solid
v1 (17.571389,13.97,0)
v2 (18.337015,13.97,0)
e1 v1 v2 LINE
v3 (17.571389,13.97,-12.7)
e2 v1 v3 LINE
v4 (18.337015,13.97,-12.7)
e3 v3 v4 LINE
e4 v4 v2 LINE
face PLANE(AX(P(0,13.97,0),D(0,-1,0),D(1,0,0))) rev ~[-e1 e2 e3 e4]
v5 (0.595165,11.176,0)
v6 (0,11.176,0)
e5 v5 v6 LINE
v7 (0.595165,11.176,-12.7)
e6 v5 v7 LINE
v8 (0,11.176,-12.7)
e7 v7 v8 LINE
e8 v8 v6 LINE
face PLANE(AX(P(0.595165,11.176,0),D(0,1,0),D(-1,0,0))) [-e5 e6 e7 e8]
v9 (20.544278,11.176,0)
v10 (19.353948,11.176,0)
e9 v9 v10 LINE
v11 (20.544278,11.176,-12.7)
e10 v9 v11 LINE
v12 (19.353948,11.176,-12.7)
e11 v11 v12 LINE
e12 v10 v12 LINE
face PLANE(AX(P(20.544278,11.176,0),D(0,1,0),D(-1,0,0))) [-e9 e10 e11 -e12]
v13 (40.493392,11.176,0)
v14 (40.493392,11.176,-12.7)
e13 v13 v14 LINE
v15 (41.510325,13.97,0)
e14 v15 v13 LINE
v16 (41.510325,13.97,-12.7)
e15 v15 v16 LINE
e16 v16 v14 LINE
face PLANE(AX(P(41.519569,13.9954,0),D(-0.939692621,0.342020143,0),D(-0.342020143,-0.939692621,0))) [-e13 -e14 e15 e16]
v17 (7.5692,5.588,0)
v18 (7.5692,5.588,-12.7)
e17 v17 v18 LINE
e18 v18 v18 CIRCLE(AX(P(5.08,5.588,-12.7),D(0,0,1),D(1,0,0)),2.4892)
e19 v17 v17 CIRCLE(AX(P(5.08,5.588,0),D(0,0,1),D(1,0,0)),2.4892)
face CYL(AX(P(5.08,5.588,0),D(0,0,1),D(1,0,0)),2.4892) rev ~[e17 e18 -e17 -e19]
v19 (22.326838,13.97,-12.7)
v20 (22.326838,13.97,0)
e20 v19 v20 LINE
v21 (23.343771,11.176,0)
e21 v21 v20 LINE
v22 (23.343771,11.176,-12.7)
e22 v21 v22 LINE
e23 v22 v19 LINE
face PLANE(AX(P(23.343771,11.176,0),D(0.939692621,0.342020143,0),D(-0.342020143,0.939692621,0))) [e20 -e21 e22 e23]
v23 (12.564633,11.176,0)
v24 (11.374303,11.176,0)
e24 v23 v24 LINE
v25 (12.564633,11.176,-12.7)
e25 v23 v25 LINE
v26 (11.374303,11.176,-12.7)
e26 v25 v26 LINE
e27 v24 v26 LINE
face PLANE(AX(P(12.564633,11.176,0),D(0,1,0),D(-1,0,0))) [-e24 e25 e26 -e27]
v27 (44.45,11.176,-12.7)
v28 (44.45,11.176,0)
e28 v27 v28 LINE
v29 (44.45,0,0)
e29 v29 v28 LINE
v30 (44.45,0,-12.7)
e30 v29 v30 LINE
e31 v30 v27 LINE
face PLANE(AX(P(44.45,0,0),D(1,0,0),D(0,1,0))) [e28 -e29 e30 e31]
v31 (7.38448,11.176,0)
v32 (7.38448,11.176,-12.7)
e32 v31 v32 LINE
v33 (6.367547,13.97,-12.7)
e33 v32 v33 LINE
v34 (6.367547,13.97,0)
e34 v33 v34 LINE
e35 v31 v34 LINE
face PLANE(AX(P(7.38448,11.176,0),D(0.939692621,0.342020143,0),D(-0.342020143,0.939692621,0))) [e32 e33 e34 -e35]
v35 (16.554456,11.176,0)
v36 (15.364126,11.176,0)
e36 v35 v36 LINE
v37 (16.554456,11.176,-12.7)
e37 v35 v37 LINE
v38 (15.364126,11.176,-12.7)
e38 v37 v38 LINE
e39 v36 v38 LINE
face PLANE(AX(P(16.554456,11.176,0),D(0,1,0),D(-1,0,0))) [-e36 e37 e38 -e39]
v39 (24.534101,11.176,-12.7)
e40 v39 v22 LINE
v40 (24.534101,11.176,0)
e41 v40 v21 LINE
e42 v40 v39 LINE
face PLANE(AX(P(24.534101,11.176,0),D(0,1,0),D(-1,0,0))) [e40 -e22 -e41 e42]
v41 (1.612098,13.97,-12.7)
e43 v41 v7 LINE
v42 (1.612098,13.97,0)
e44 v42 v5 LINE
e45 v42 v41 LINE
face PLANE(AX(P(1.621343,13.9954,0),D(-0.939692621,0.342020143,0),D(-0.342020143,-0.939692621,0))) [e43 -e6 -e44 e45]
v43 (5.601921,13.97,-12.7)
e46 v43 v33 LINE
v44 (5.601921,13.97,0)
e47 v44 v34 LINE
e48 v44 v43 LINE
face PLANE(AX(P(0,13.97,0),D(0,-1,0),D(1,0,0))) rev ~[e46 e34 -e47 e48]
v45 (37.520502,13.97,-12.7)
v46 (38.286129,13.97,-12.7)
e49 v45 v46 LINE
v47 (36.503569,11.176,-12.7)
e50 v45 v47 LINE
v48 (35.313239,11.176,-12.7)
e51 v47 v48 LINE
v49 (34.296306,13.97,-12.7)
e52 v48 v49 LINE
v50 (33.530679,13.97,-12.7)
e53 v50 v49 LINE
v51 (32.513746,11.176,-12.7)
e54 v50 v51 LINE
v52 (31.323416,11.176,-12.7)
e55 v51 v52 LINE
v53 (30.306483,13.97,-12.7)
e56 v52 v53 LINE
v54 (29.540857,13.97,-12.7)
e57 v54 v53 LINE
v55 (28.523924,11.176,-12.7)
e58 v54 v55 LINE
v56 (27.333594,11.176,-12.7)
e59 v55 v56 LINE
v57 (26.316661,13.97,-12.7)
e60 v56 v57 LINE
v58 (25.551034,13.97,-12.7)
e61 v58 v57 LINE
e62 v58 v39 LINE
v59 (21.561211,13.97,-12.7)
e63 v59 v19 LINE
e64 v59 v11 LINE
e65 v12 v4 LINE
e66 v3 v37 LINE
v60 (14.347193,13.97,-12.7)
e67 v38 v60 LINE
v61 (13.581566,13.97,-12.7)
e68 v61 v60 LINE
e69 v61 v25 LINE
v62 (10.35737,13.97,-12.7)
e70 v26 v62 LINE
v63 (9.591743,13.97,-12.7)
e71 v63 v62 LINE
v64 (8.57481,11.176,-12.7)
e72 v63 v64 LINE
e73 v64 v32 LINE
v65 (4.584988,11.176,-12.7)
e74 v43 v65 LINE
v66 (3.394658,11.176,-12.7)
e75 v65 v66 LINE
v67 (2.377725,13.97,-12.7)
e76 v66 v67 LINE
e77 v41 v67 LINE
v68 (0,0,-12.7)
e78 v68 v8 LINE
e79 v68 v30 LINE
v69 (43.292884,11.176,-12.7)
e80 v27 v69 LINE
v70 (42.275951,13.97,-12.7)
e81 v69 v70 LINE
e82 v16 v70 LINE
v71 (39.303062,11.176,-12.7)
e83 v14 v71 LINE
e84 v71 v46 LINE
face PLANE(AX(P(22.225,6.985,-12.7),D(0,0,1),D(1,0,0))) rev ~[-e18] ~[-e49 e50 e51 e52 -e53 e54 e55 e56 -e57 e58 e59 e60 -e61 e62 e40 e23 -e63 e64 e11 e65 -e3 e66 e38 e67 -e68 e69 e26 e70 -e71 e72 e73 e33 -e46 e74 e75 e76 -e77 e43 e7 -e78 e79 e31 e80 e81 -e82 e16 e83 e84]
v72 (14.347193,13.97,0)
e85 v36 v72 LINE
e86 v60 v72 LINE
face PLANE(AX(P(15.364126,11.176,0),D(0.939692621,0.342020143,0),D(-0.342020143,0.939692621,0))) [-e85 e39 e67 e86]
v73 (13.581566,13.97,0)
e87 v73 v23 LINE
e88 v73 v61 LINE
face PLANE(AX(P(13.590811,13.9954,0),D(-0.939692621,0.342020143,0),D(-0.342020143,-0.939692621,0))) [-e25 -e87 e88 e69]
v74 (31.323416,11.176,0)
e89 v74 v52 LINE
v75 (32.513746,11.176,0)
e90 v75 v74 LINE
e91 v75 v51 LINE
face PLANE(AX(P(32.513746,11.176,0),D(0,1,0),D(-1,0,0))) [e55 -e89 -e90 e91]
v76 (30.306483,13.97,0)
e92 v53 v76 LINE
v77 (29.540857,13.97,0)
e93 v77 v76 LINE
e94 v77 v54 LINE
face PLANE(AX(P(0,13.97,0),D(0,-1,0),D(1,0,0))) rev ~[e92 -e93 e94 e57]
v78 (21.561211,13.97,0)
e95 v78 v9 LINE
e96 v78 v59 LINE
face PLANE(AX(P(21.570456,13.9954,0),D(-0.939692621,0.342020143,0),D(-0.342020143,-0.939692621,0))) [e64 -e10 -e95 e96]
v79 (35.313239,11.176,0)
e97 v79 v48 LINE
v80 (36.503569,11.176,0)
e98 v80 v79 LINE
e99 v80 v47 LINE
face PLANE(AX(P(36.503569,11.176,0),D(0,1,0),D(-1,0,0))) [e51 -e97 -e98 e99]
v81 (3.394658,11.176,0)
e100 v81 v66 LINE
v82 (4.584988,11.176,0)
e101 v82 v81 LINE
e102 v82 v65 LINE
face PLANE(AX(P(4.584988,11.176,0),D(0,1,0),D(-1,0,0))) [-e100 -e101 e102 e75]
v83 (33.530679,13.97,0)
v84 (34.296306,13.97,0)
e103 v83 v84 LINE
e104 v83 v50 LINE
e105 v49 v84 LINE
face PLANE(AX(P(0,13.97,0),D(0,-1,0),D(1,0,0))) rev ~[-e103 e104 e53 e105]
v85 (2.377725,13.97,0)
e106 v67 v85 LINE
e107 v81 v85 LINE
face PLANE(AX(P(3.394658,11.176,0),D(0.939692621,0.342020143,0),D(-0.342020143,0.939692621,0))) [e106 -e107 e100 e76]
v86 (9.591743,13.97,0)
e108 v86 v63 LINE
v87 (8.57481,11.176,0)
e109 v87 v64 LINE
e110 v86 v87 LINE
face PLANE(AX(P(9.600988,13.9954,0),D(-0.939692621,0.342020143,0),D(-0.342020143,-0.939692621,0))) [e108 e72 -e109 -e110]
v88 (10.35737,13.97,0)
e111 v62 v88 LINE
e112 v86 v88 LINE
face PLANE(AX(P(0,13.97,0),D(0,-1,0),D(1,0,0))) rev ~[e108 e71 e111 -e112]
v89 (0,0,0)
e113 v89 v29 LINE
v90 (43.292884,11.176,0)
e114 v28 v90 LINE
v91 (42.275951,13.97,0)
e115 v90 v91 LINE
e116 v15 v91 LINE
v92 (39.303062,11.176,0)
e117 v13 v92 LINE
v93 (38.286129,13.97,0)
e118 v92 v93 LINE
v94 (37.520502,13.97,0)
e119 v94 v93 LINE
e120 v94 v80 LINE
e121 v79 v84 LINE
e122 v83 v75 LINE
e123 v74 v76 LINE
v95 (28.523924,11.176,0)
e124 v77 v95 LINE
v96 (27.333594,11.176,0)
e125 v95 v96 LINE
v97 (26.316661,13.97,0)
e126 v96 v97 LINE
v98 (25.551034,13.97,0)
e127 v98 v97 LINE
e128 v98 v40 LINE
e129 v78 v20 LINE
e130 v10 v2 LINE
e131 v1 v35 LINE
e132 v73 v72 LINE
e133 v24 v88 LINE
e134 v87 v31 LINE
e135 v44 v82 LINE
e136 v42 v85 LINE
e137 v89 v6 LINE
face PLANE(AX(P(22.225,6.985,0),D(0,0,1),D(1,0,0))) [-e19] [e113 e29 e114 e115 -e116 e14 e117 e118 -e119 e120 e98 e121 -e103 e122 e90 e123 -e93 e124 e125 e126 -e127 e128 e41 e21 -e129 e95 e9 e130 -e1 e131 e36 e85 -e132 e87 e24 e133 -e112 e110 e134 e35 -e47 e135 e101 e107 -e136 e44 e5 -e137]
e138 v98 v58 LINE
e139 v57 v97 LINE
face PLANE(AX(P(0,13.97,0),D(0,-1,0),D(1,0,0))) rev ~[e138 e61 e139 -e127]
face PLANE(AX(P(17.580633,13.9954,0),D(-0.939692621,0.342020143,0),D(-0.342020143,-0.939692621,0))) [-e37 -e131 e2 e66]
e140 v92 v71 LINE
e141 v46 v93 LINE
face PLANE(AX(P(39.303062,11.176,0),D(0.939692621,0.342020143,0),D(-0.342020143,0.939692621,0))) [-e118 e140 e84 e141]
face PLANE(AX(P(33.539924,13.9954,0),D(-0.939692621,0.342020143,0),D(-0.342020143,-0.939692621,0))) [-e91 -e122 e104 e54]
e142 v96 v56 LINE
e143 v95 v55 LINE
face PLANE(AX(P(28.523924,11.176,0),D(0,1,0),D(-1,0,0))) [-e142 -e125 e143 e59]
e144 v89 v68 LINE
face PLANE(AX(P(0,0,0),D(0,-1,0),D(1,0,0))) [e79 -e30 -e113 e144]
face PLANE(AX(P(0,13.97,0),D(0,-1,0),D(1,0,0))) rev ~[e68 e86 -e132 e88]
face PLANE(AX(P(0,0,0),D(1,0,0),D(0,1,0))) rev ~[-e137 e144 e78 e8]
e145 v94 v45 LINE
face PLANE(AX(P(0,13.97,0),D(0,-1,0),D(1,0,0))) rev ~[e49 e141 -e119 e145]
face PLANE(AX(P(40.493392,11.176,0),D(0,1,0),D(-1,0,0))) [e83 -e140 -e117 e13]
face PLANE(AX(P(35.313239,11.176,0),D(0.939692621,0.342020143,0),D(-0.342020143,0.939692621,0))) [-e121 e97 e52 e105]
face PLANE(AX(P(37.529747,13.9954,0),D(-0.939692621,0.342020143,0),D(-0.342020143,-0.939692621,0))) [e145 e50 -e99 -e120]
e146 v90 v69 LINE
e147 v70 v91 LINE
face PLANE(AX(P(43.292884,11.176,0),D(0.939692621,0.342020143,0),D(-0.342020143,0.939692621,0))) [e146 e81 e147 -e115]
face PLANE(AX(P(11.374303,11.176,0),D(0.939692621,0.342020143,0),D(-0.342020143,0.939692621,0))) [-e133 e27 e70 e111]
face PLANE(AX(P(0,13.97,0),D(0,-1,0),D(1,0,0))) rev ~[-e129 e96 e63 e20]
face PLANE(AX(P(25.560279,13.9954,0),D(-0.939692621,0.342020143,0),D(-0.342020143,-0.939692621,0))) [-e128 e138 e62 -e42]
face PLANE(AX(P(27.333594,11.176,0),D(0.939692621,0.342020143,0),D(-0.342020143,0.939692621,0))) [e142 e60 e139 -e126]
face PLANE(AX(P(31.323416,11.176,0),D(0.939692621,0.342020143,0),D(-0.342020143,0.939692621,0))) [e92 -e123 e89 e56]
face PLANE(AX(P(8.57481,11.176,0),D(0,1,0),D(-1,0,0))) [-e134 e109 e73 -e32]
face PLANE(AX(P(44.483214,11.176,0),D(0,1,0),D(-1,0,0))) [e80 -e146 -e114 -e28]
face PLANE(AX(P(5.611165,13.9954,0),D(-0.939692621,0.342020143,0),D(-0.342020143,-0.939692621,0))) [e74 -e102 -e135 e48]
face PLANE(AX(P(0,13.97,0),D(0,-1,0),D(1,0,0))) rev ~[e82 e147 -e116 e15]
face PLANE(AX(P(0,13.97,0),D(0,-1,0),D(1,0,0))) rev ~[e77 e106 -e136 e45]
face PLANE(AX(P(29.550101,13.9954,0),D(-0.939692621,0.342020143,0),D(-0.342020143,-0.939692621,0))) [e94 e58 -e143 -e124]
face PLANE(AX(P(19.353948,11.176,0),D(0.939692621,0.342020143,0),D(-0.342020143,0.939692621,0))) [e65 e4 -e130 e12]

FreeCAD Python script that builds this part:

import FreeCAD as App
import Part
import Sketcher
from FreeCAD import Vector
Q = App.Units.Quantity


def add_polygon(sketch, points):
    """Adds a closed chain of lines whose ends are joined by coincident constraints."""
    first, n = sketch.GeometryCount, len(points)
    for a, b in zip(points, points[1:] + points[:1]):
        sketch.addGeometry(Part.LineSegment(App.Vector(*a, 0), App.Vector(*b, 0)), False)
    for i in range(n):
        sketch.addConstraint(Sketcher.Constraint("Coincident", first + i, 2, first + (i + 1) % n, 1))

doc = App.newDocument("Part")
body = doc.addObject("PartDesign::Body", "Body")

# Sketch on XY plane
sketch1 = body.newObject("Sketcher::SketchObject", "Sketch")
sketch1.AttachmentSupport = (doc.getObject("XY_Plane"), [""])
sketch1.MapMode = "FlatFace"
add_polygon(sketch1, [(0, 13.97), (0, 0), (44.45, 0), (44.45, 13.97)])  # lines 0-3
sketch1.addConstraint(Sketcher.Constraint("Vertical", 0))
sketch1.addConstraint(Sketcher.Constraint("Horizontal", 1))
sketch1.addConstraint(Sketcher.Constraint("Vertical", 2))
sketch1.addConstraint(Sketcher.Constraint("Horizontal", 3))
sketch1.addConstraint(Sketcher.Constraint("Coincident", 0, 2, -1, 1))
sketch1.addConstraint(Sketcher.Constraint("DistanceX", 1, 1, 1, 2, Q("1.75 in")))
sketch1.addConstraint(Sketcher.Constraint("DistanceY", 0, 2, 0, 1, Q("0.55 in")))
pad1 = body.newObject("PartDesign::Pad", "Pad")
pad1.Profile = sketch1
pad1.Length = Q("0.5 in")
pad1.Reversed = True

# Sketch on XY plane
sketch2 = body.newObject("Sketcher::SketchObject", "Sketch001")
sketch2.AttachmentSupport = (doc.getObject("XY_Plane"), [""])
sketch2.MapMode = "FlatFace"
add_polygon(sketch2, [(-0.595165, 11.176), (0.595165, 11.176), (1.621343, 13.9954), (-1.621343, 13.9954)])  # lines 0-3
sketch2.addConstraint(Sketcher.Constraint("Horizontal", 0))
sketch2.addConstraint(Sketcher.Constraint("Horizontal", 2))
sketch2.addConstraint(Sketcher.Constraint("Equal", 1, 3))
sketch2.addConstraint(Sketcher.Constraint("Angle", 1, Q("70 deg")))
sketch2.addConstraint(Sketcher.Constraint("DistanceY", -1, 1, 0, 2, Q("0.44 in")))
sketch2.addConstraint(Sketcher.Constraint("DistanceY", -1, 1, 1, 2, Q("0.551 in")))
sketch2.addConstraint(Sketcher.Constraint("DistanceX", 0, 1, 0, 2, 1.19033))
sketch2.addConstraint(Sketcher.Constraint("DistanceX", -1, 1, 0, 2, 0.595165))
pocket1 = body.newObject("PartDesign::Pocket", "Pocket")
pocket1.Profile = sketch2
pocket1.Type = "ThroughAll"
doc.recompute()

linearpattern = body.newObject("PartDesign::LinearPattern", "LinearPattern")
linearpattern.Originals = [pocket1]
linearpattern.Direction = (doc.getObject("X_Axis"), [""])
linearpattern.Mode = "offset"
linearpattern.Offset = 3.989823
linearpattern.Occurrences = 12
body.Tip = linearpattern

# Sketch on XY plane
sketch3 = body.newObject("Sketcher::SketchObject", "Sketch002")
sketch3.AttachmentSupport = (doc.getObject("XY_Plane"), [""])
sketch3.MapMode = "FlatFace"
sketch3.addGeometry(Part.Circle(Vector(5.08, 5.588, 0), Vector(0, 0, 1), 2.4892), False)
sketch3.addConstraint(Sketcher.Constraint("Diameter", 0, Q("0.196 in")))
sketch3.addConstraint(Sketcher.Constraint("DistanceX", -1, 1, 0, 3, Q("0.2 in")))
sketch3.addConstraint(Sketcher.Constraint("DistanceY", -1, 1, 0, 3, Q("0.22 in")))
pocket2 = body.newObject("PartDesign::Pocket", "Pocket001")
pocket2.Profile = sketch3
pocket2.Type = "UpToFirst"

doc.recompute()
